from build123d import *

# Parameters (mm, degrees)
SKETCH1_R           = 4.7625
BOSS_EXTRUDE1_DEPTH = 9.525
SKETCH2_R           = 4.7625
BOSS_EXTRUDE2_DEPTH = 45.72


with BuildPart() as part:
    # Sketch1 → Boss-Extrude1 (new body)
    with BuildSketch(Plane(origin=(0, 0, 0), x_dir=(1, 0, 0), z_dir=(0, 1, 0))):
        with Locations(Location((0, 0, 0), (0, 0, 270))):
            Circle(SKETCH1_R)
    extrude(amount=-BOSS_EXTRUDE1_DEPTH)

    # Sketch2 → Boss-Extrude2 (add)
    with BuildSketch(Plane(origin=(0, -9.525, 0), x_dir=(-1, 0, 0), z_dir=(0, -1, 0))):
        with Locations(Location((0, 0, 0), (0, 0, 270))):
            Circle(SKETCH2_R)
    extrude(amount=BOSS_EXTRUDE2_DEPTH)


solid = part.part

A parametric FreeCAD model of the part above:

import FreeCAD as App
import Part
import Sketcher
from FreeCAD import Vector
Q = App.Units.Quantity

doc = App.newDocument("Part")
body = doc.addObject("PartDesign::Body", "Body")

# Sketch on XZ plane
sketch1 = doc.addObject("Sketcher::SketchObject", "Sketch")
body.addObject(sketch1)
sketch1.AttachmentSupport = (doc.XZ_Plane, [""])
sketch1.MapMode = "FlatFace"
sketch1.addGeometry(Part.Circle(Vector(0, 0, 0), Vector(0, 0, 1), 4.8), False)
sketch1.addConstraint([
    Sketcher.Constraint("Coincident", 0, 3, -1, 1),
    Sketcher.Constraint("Diameter", 0, Q("0.375 in")),
])
pad1 = doc.addObject("PartDesign::Pad", "Pad")
body.addObject(pad1)
pad1.Profile = sketch1
pad1.Length = Q("0.375 in")

# Sketch on XZ plane
sketch2 = doc.addObject("Sketcher::SketchObject", "Sketch001")
body.addObject(sketch2)
sketch2.AttachmentSupport = (doc.XZ_Plane, [""])
sketch2.MapMode = "FlatFace"
sketch2.AttachmentOffset = App.Placement(Vector(0, 0, 0.375 * 25.4), App.Rotation())
sketch2.addGeometry(Part.Circle(Vector(0, 0, 0), Vector(0, 0, 1), 4.8), False)
sketch2.addConstraint([
    Sketcher.Constraint("Coincident", 0, 3, -1, 1),
    Sketcher.Constraint("Diameter", 0, Q("0.375 in")),
])
pad2 = doc.addObject("PartDesign::Pad", "Pad001")
body.addObject(pad2)
pad2.Profile = sketch2
pad2.Length = Q("1.8 in")

doc.recompute()
